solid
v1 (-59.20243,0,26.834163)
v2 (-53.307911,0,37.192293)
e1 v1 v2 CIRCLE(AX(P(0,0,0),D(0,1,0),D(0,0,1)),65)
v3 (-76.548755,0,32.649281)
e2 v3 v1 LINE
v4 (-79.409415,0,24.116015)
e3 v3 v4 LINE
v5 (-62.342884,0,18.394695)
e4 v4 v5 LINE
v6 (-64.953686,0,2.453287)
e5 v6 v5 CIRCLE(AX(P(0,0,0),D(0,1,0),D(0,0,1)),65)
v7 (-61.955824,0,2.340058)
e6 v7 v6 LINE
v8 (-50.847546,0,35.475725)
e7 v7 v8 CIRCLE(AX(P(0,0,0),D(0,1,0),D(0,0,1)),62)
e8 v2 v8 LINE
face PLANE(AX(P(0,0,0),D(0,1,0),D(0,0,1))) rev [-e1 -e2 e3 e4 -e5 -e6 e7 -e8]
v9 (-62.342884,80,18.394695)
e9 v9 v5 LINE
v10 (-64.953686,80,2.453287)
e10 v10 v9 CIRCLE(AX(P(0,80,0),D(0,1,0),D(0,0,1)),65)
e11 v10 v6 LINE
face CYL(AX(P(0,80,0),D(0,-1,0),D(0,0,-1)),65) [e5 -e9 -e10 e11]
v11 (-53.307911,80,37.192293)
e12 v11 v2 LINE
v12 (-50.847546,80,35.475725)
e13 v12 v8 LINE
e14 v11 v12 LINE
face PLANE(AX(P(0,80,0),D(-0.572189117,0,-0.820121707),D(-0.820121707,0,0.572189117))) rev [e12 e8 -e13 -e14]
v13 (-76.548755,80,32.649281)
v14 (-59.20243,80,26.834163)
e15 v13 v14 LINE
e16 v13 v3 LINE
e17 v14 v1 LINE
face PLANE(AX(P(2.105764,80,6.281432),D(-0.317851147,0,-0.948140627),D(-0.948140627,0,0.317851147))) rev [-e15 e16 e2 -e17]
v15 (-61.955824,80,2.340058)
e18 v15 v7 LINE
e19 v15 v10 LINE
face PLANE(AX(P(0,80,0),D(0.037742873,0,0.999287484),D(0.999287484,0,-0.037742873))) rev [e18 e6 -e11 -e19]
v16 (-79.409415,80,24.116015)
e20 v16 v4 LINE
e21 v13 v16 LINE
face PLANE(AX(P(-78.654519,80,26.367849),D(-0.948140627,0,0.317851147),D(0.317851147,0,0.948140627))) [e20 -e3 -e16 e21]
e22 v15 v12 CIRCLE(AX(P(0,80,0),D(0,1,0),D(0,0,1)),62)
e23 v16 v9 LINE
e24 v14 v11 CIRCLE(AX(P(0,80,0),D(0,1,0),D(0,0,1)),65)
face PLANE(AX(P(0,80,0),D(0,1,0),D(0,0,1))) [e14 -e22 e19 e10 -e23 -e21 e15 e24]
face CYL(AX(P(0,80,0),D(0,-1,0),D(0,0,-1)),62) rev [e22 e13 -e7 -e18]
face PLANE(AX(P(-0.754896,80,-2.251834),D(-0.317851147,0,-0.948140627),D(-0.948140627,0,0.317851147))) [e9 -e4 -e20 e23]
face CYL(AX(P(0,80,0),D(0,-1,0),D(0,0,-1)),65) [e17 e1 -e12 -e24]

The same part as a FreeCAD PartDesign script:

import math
import FreeCAD as App
import Part
import Sketcher
from FreeCAD import Vector
Q = App.Units.Quantity

doc = App.newDocument("Part")
body = doc.addObject("PartDesign::Body", "Body")

# Sketch on XZ plane
sketch1 = body.newObject("Sketcher::SketchObject", "Sketch")
sketch1.AttachmentSupport = (doc.getObject("XZ_Plane"), [""])
sketch1.MapMode = "FlatFace"
sketch1.addGeometry([
    Part.LineSegment(Vector(-76.5, 32.6, 0), Vector(-59.2, 26.8, 0)),  # 0
    Part.ArcOfCircle(Part.Circle(Vector(0, 0, 0), Vector(0, 0, 1), 65), math.radians(145.1), math.radians(155.62)),  # 1
    Part.LineSegment(Vector(-53.3, 37.2, 0), Vector(-50.8, 35.5, 0)),  # 2
    Part.ArcOfCircle(Part.Circle(Vector(0, 0, 0), Vector(0, 0, 1), 62), math.radians(145), math.radians(178)),  # 3
    Part.LineSegment(Vector(-62, 2.3, 0), Vector(-65, 2.5, 0)),  # 4
    Part.ArcOfCircle(Part.Circle(Vector(0, 0, 0), Vector(0, 0, 1), 65), math.radians(163.56), math.radians(177.84)),  # 5
    Part.LineSegment(Vector(-62.3, 18.4, 0), Vector(-79.4, 24.1, 0)),  # 6
    Part.LineSegment(Vector(-79.4, 24.1, 0), Vector(-76.5, 32.6, 0)),  # 7
], False)
sketch1.addConstraint([
    Sketcher.Constraint("Coincident", 0, 2, 1, 2),
    Sketcher.Constraint("Coincident", 1, 1, 2, 1),
    Sketcher.Constraint("Coincident", 2, 2, 3, 1),
    Sketcher.Constraint("Coincident", 3, 2, 4, 1),
    Sketcher.Constraint("Coincident", 4, 2, 5, 2),
    Sketcher.Constraint("Coincident", 5, 1, 6, 1),
    Sketcher.Constraint("Coincident", 6, 2, 7, 1),
    Sketcher.Constraint("Coincident", 7, 2, 0, 1),
    Sketcher.Constraint("Coincident", 1, 3, -1, 1),
    Sketcher.Constraint("Coincident", 3, 3, -1, 1),
    Sketcher.Constraint("Coincident", 5, 3, -1, 1),
    Sketcher.Constraint("Equal", 1, 5),
    Sketcher.Constraint("Parallel", 0, 6),
    Sketcher.Constraint("Perpendicular", 6, 7),
    Sketcher.Constraint("Radius", 1, Q("65 mm")),
    Sketcher.Constraint("Radius", 3, Q("62 mm")),
    Sketcher.Constraint("Distance", 6, Q("18 mm")),
    Sketcher.Constraint("Distance", 7, Q("9 mm")),
    Sketcher.Constraint("DistanceY", 5, 1, 1, 1, Q("18.797598 mm")),
    Sketcher.Constraint("DistanceX", 0, 2, -1, 1, Q("59.20243 mm")),
    Sketcher.Constraint("DistanceY", -1, 1, 3, 2, Q("2.340058 mm")),
    Sketcher.Constraint("DistanceY", -1, 1, 7, 2, Q("32.649281 mm")),
    Sketcher.Constraint("DistanceX", 3, 2, 2, 2, Q("11.108278 mm")),
    Sketcher.Constraint("DistanceY", 3, 2, 4, 2, Q("0.113229 mm")),
])
pad1 = body.newObject("PartDesign::Pad", "Pad")
pad1.Profile = sketch1
pad1.Length = 80
pad1.Reversed = True

doc.recompute()
